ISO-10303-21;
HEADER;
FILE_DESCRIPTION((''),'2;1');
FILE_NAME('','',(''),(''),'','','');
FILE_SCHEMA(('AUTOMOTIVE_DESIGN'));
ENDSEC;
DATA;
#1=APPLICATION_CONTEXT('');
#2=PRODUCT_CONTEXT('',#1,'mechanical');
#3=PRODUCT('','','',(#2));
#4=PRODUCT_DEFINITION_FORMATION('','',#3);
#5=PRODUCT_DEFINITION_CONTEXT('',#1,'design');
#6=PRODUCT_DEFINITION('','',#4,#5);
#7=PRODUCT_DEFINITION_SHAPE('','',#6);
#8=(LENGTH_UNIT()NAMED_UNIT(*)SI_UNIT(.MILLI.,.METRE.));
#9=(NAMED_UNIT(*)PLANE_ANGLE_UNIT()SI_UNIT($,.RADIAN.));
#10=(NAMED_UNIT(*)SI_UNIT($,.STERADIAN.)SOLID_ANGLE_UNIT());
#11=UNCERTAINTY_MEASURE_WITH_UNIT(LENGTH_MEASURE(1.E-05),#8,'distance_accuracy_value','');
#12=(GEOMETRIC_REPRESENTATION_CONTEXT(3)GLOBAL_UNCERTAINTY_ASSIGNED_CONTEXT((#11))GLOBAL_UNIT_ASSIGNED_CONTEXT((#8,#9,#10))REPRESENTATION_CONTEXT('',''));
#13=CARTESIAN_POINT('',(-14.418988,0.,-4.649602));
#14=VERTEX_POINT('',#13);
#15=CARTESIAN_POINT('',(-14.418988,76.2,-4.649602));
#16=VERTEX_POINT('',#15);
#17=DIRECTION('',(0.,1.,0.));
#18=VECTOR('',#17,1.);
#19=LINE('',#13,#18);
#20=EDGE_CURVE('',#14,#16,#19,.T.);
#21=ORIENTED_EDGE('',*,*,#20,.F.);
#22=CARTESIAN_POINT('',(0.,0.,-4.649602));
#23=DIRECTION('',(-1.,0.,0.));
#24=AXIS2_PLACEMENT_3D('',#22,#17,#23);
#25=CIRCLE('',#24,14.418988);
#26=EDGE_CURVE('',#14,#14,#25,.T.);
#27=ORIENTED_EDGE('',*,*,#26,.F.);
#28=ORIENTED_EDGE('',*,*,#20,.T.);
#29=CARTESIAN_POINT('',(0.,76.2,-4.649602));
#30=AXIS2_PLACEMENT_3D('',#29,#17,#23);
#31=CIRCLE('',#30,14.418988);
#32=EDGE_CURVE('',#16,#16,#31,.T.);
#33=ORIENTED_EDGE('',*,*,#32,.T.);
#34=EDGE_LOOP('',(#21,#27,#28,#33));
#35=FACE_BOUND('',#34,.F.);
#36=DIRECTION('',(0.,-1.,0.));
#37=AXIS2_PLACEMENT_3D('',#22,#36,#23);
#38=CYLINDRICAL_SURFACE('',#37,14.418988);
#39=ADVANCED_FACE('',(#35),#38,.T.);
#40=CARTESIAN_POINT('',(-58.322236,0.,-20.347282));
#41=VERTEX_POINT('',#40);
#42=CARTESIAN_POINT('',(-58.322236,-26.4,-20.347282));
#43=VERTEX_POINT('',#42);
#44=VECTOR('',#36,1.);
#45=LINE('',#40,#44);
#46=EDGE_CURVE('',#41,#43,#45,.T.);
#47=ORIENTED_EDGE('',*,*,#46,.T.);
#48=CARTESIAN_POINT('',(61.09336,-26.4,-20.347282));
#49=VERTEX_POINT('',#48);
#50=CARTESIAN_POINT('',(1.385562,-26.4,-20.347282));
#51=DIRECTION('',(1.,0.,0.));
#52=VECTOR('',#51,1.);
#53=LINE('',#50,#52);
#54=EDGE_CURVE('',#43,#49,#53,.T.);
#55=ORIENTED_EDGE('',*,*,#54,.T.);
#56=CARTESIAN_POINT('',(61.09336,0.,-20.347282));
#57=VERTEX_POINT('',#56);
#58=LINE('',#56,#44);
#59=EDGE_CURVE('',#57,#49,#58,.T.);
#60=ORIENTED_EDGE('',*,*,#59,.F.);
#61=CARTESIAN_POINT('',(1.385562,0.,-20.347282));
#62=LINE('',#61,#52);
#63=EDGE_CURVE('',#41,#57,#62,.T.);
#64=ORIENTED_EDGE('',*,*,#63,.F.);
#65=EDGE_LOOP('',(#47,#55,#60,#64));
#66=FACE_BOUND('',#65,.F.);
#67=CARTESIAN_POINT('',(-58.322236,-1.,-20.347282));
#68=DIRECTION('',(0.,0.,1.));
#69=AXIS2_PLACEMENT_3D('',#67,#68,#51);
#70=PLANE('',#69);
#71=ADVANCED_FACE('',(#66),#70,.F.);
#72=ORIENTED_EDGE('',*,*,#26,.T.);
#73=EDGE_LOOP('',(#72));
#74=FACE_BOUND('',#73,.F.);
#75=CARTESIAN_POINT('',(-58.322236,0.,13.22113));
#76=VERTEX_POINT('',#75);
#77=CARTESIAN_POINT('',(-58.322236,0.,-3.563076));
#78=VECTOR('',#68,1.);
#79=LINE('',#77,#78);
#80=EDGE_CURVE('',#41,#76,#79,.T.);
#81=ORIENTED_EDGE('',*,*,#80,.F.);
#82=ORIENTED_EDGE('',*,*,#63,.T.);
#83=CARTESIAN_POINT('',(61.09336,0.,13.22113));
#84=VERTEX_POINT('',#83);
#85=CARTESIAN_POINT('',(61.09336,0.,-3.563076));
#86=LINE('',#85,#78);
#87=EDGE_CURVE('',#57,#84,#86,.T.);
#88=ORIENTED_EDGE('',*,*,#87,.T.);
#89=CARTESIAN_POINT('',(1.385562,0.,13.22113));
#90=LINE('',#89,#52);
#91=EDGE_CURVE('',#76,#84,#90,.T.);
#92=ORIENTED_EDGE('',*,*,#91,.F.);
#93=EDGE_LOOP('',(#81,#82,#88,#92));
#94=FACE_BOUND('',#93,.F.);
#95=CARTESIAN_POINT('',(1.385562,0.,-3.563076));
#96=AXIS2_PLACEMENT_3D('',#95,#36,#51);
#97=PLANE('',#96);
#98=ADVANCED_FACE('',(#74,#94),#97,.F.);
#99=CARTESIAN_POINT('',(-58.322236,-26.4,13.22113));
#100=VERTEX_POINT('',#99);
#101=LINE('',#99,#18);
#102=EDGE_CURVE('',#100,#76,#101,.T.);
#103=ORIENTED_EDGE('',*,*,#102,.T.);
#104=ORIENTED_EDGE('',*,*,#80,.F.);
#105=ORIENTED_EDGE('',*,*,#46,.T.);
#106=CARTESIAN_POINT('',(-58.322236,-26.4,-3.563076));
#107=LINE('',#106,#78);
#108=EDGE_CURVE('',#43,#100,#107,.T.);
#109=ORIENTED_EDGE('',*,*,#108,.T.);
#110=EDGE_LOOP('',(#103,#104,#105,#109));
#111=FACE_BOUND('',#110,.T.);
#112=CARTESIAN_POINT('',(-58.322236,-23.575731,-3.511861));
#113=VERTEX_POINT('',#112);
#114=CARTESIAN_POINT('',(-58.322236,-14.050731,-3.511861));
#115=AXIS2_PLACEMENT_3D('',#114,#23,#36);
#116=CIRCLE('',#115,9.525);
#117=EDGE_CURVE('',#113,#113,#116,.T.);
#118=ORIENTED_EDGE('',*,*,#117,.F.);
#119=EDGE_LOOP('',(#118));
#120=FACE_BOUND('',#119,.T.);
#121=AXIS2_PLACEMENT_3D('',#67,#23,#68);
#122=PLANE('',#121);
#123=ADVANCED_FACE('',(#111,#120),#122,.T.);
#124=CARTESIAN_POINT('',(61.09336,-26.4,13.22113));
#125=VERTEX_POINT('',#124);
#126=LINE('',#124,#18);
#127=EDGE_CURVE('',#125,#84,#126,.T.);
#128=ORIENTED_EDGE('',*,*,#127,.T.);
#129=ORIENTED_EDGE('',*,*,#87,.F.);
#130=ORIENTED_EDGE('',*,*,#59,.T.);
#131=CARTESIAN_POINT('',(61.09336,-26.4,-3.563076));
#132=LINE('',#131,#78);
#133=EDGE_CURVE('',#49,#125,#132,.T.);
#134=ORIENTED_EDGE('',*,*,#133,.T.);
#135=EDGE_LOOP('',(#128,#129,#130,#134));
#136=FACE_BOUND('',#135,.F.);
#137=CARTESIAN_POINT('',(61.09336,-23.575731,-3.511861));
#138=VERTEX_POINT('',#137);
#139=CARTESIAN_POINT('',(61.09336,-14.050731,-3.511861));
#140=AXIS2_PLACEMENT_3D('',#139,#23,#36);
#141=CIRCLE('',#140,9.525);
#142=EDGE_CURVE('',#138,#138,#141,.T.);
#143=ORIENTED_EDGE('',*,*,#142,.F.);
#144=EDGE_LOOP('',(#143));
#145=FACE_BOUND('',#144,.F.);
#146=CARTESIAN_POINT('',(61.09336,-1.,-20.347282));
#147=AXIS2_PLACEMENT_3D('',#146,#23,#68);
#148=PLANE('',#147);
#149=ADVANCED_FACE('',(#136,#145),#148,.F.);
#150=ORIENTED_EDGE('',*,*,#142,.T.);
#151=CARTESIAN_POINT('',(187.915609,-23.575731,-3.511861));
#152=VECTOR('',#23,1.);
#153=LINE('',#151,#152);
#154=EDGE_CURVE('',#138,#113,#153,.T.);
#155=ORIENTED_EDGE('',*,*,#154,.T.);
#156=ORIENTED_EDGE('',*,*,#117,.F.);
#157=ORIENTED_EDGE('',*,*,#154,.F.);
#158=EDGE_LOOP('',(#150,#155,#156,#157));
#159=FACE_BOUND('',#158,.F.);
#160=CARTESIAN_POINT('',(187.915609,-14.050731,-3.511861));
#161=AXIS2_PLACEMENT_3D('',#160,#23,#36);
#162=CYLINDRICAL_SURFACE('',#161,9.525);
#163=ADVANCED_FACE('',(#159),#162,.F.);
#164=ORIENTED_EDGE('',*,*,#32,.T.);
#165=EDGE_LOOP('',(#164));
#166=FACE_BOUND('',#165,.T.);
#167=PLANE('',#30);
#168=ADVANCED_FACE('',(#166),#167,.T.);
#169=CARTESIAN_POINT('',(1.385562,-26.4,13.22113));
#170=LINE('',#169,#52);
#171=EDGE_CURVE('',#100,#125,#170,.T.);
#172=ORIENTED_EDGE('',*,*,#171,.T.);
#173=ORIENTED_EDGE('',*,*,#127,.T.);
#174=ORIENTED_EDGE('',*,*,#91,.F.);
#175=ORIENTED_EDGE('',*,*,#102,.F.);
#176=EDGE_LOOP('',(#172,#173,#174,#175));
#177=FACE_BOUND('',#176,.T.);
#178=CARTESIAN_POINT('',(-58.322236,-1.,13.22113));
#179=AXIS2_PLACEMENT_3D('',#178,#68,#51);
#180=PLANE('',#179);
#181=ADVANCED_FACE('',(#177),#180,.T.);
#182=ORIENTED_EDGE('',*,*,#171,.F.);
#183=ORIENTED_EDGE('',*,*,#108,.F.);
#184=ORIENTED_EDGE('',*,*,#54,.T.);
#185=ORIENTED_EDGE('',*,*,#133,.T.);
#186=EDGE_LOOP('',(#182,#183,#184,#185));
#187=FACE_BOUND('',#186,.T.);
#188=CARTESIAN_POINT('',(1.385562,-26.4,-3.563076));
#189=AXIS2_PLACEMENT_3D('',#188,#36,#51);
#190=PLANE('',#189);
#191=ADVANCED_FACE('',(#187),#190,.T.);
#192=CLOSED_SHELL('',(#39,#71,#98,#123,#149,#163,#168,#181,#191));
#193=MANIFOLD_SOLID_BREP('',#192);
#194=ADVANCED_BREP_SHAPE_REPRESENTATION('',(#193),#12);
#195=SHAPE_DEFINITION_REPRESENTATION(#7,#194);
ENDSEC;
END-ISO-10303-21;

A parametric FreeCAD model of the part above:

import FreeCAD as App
import Part
import Sketcher
from FreeCAD import Vector
Q = App.Units.Quantity


def add_polygon(sketch, points):
    """Adds a closed chain of lines whose ends are joined by coincident constraints."""
    first, n = sketch.GeometryCount, len(points)
    for a, b in zip(points, points[1:] + points[:1]):
        sketch.addGeometry(Part.LineSegment(App.Vector(*a, 0), App.Vector(*b, 0)), False)
    for i in range(n):
        sketch.addConstraint(Sketcher.Constraint("Coincident", first + i, 2, first + (i + 1) % n, 1))

doc = App.newDocument("Part")
body = doc.addObject("PartDesign::Body", "Body")

sketch1 = body.newObject("Sketcher::SketchObject", "Sketch")
sketch1.AttachmentSupport = (doc.getObject("XZ_Plane"), [""])
sketch1.MapMode = "FlatFace"
add_polygon(sketch1, [(-58, 13), (-58, -20), (61, -20), (61, 13)])
sketch1.addConstraint([
    Sketcher.Constraint("Vertical", 0),
    Sketcher.Constraint("Horizontal", 1),
    Sketcher.Constraint("Vertical", 2),
    Sketcher.Constraint("Horizontal", 3),
    Sketcher.Constraint("DistanceX", 1, 1, 1, 2, Q("119.415596 mm")),
    Sketcher.Constraint("DistanceY", 0, 2, 0, 1, Q("33.568412 mm")),
    Sketcher.Constraint("DistanceY", 0, 2, -1, 1, Q("20.347282 mm")),
    Sketcher.Constraint("DistanceX", -1, 1, 1, 2, Q("61.09336 mm")),
])
pad1 = body.newObject("PartDesign::Pad", "Pad")
pad1.Profile = sketch1
pad1.Length = 1

sketch2 = body.newObject("Sketcher::SketchObject", "Sketch001")
sketch2.AttachmentSupport = (doc.getObject("XZ_Plane"), [""])
sketch2.MapMode = "FlatFace"
sketch2.AttachmentOffset = App.Placement(Vector(0, 0, 1), App.Rotation())
add_polygon(sketch2, [(-58, 13), (-58, -20), (61, -20), (61, 13)])
sketch2.addConstraint([
    Sketcher.Constraint("Vertical", 0),
    Sketcher.Constraint("Horizontal", 1),
    Sketcher.Constraint("Vertical", 2),
    Sketcher.Constraint("Horizontal", 3),
    Sketcher.Constraint("DistanceX", 1, 1, 1, 2, Q("119.415596 mm")),
    Sketcher.Constraint("DistanceY", 0, 2, 0, 1, Q("33.568412 mm")),
    Sketcher.Constraint("DistanceY", 0, 2, -1, 1, Q("20.347282 mm")),
    Sketcher.Constraint("DistanceX", -1, 1, 1, 2, Q("61.09336 mm")),
])
pad2 = body.newObject("PartDesign::Pad", "Pad001")
pad2.Profile = sketch2
pad2.Length = Q("1 in")

sketch3 = body.newObject("Sketcher::SketchObject", "Sketch002")
sketch3.AttachmentSupport = (doc.getObject("YZ_Plane"), [""])
sketch3.MapMode = "FlatFace"
sketch3.AttachmentOffset = App.Placement(Vector(0, 0, 61.09336), App.Rotation())
sketch3.addGeometry(Part.Circle(Vector(-14, -4, 0), Vector(0, 0, 1), 10), False)
sketch3.addConstraint([
    Sketcher.Constraint("Diameter", 0, Q("0.75 in")),
    Sketcher.Constraint("DistanceX", 0, 3, -1, 1, Q("14.050731 mm")),
    Sketcher.Constraint("DistanceY", 0, 3, -1, 1, Q("3.511861 mm")),
])
doc.recompute()
hole = body.newObject("PartDesign::Hole", "Hole")
hole.Profile = sketch3
hole.ThreadType = "None"
hole.Diameter = Q("0.75 in")
hole.DepthType = "ThroughAll"

sketch4 = body.newObject("Sketcher::SketchObject", "Sketch003")
sketch4.AttachmentSupport = (doc.getObject("XZ_Plane"), [""])
sketch4.MapMode = "FlatFace"
sketch4.addGeometry(Part.Circle(Vector(0, -5, 0), Vector(0, 0, 1), 14), False)
sketch4.addConstraint([
    Sketcher.Constraint("PointOnObject", 0, 3, -2),
    Sketcher.Constraint("Diameter", 0, Q("28.837976 mm")),
    Sketcher.Constraint("DistanceY", 0, 3, -1, 1, Q("4.649602 mm")),
])
pad3 = body.newObject("PartDesign::Pad", "Pad002")
pad3.Profile = sketch4
pad3.Length = Q("3 in")
pad3.Reversed = True

doc.recompute()
